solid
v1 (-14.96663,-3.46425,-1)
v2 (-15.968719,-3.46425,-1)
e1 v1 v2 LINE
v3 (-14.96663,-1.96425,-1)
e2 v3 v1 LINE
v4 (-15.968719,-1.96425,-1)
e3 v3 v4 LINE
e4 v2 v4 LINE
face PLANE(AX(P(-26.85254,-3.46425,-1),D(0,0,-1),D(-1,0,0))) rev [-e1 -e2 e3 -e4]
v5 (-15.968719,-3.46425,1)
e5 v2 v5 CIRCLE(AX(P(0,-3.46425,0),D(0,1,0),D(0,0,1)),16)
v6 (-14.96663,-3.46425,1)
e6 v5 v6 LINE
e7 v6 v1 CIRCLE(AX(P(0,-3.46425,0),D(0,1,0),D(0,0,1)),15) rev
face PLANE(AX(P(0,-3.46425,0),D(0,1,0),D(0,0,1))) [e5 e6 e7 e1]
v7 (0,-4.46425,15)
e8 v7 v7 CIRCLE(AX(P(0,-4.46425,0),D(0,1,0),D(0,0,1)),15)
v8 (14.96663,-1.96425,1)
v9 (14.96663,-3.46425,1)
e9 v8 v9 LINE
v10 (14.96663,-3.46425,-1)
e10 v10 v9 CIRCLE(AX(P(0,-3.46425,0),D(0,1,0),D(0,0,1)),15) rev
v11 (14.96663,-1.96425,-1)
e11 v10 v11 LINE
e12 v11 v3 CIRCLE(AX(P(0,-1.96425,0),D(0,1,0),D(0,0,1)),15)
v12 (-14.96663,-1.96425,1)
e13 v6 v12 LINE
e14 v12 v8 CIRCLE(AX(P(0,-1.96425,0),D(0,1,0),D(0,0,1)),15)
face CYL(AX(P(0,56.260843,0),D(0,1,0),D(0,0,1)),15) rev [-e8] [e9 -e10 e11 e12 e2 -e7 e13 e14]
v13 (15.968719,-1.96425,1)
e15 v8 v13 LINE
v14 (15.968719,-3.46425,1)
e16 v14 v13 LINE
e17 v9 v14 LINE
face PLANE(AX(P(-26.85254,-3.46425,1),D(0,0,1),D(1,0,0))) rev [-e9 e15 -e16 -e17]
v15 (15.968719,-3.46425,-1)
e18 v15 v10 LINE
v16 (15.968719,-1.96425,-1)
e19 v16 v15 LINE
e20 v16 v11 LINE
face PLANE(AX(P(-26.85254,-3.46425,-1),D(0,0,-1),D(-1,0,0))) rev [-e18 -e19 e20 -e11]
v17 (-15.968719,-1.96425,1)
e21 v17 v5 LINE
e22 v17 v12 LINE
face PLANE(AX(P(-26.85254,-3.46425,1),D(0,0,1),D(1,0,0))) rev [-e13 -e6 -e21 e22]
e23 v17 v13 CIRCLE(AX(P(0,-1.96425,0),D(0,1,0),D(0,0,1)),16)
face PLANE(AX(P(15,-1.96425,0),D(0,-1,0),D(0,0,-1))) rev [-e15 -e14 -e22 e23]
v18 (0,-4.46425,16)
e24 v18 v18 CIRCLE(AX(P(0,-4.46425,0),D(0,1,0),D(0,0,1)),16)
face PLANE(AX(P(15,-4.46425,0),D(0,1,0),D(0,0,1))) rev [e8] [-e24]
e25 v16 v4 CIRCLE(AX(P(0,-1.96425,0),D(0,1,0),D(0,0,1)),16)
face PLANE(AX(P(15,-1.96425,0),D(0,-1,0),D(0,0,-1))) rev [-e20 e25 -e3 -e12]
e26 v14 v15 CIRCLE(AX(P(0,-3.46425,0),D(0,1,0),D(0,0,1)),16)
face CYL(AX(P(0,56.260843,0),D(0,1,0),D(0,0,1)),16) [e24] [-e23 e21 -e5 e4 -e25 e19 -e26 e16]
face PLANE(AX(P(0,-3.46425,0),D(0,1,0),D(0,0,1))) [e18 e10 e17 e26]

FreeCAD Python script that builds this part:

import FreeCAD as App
import Part
import Sketcher
Q = App.Units.Quantity


def add_polygon(sketch, points):
    """Adds a closed chain of lines whose ends are joined by coincident constraints."""
    first, n = sketch.GeometryCount, len(points)
    for a, b in zip(points, points[1:] + points[:1]):
        sketch.addGeometry(Part.LineSegment(App.Vector(*a, 0), App.Vector(*b, 0)), False)
    for i in range(n):
        sketch.addConstraint(Sketcher.Constraint("Coincident", first + i, 2, first + (i + 1) % n, 1))

doc = App.newDocument("Part")
body = doc.addObject("PartDesign::Body", "Body")

sketch1 = body.newObject("Sketcher::SketchObject", "Sketch")
sketch1.AttachmentSupport = (doc.getObject("XY_Plane"), [""])
sketch1.MapMode = "FlatFace"
add_polygon(sketch1, [(15, -2), (15, -4.5), (16, -4.5), (16, -2)])
sketch1.addConstraint(Sketcher.Constraint("Vertical", 0))
sketch1.addConstraint(Sketcher.Constraint("Horizontal", 1))
sketch1.addConstraint(Sketcher.Constraint("Vertical", 2))
sketch1.addConstraint(Sketcher.Constraint("Horizontal", 3))
sketch1.addConstraint(Sketcher.Constraint("DistanceX", 1, 1, 1, 2, Q("1 mm")))
sketch1.addConstraint(Sketcher.Constraint("DistanceY", 0, 2, 0, 1, Q("2.5 mm")))
sketch1.addConstraint(Sketcher.Constraint("DistanceX", -1, 1, 0, 2, Q("15 mm")))
sketch1.addConstraint(Sketcher.Constraint("DistanceY", 0, 2, -1, 1, Q("4.46425 mm")))
revolution = body.newObject("PartDesign::Revolution", "Revolution")
revolution.Profile = sketch1
revolution.ReferenceAxis = (sketch1, ["V_Axis"])
revolution.Angle = 360

sketch2 = body.newObject("Sketcher::SketchObject", "Sketch001")
sketch2.AttachmentSupport = (doc.getObject("XZ_Plane"), [""])
sketch2.MapMode = "FlatFace"
sketch2.AttachmentOffset = App.Placement(App.Vector(0, 0, 1.96425), App.Rotation())
add_polygon(sketch2, [(-26.9, -1), (-26.9, 1), (26.9, 1), (26.9, -1)])
sketch2.addConstraint(Sketcher.Constraint("Vertical", 0))
sketch2.addConstraint(Sketcher.Constraint("Horizontal", 1))
sketch2.addConstraint(Sketcher.Constraint("Vertical", 2))
sketch2.addConstraint(Sketcher.Constraint("Horizontal", 3))
sketch2.addConstraint(Sketcher.Constraint("Symmetric", 0, 2, 2, 2, -1, 1))
sketch2.addConstraint(Sketcher.Constraint("DistanceY", 0, 1, 0, 2, Q("2 mm")))
sketch2.addConstraint(Sketcher.Constraint("DistanceX", 1, 1, 1, 2, Q("53.705081 mm")))
pocket1 = body.newObject("PartDesign::Pocket", "Pocket")
pocket1.Profile = sketch2
pocket1.Length = 1.5
pocket1.Reversed = True

doc.recompute()
